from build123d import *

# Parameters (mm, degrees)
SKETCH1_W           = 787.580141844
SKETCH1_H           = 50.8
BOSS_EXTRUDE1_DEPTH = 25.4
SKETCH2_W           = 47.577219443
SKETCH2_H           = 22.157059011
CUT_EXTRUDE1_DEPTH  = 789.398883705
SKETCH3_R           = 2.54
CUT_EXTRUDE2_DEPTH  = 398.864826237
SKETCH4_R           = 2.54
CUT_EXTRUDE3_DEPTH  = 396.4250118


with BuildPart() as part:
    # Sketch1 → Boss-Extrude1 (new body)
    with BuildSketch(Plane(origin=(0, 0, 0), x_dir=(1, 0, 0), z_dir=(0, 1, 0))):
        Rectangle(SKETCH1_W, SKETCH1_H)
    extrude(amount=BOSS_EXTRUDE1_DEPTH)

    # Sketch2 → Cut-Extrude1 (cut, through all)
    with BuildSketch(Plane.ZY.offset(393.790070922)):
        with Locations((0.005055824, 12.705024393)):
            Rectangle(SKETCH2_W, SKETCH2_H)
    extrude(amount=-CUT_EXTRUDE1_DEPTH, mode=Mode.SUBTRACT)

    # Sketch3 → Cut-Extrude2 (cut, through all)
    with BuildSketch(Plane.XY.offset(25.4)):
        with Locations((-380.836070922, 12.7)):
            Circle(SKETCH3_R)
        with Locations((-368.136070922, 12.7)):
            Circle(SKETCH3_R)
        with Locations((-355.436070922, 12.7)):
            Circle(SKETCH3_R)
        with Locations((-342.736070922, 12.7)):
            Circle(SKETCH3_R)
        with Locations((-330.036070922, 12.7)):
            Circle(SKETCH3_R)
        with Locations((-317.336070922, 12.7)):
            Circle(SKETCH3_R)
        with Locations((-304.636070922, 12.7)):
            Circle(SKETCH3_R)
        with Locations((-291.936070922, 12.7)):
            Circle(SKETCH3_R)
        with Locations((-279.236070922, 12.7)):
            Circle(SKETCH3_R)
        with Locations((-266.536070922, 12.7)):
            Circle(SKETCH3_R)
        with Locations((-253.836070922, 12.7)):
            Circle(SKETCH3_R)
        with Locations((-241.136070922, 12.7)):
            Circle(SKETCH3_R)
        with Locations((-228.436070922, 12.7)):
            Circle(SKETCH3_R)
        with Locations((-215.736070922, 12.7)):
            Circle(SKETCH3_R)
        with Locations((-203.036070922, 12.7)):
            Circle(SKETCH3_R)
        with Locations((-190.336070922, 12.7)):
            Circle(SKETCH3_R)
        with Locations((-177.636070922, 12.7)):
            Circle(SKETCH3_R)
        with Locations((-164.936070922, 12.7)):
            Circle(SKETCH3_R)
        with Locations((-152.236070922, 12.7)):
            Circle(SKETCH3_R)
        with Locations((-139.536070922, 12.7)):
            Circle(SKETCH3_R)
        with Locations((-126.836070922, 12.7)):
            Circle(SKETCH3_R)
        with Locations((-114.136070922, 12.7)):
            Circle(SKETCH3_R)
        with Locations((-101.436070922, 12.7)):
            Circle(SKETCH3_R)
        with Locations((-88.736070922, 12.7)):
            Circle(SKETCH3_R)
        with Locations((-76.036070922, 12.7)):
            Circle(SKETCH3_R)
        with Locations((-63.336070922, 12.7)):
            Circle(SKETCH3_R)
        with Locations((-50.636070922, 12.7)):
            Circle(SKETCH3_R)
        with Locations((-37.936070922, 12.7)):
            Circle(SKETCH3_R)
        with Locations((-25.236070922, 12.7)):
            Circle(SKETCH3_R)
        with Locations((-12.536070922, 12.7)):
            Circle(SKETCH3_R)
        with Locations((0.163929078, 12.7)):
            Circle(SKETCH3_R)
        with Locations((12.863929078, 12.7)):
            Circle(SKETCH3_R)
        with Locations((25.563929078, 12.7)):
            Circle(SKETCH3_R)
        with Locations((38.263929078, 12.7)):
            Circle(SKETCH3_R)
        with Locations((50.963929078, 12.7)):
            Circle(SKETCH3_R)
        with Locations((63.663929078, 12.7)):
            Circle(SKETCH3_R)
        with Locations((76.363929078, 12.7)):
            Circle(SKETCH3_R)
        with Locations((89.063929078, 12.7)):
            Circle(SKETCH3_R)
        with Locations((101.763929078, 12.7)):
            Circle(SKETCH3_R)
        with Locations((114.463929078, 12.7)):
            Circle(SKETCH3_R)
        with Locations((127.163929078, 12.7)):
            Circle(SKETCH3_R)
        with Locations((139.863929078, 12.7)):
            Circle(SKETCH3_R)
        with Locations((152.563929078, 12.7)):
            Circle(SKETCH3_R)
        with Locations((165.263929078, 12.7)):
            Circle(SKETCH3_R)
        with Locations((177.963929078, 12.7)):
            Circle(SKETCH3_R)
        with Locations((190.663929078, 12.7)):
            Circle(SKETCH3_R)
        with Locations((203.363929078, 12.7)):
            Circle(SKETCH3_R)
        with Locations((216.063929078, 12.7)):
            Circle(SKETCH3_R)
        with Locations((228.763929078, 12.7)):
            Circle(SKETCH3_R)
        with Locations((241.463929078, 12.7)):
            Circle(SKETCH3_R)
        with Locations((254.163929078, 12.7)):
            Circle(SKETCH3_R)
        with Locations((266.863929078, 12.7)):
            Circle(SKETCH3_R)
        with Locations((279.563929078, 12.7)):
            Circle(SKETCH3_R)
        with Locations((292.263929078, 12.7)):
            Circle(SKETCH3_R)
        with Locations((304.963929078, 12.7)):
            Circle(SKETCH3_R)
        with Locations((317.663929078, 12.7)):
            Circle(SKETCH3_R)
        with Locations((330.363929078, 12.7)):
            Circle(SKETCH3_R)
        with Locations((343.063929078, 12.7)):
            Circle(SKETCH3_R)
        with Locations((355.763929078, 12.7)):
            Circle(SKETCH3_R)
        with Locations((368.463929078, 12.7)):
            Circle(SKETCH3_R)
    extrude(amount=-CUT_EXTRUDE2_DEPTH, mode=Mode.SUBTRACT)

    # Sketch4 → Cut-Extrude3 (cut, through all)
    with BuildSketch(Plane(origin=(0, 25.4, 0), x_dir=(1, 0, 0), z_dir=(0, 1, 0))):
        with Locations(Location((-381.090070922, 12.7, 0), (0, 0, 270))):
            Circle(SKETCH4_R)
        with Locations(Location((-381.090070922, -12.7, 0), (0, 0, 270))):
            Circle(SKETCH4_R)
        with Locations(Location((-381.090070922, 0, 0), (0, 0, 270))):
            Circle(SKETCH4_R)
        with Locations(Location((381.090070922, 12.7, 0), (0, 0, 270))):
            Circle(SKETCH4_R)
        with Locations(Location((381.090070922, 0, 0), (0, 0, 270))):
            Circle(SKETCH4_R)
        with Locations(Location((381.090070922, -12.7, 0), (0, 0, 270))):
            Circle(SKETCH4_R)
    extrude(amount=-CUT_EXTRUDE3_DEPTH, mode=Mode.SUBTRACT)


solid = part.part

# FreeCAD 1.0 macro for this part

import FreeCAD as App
import Part
import Sketcher
Q = App.Units.Quantity


def add_polygon(sketch, points):
    """Adds a closed chain of lines whose ends are joined by coincident constraints."""
    first, n = sketch.GeometryCount, len(points)
    for a, b in zip(points, points[1:] + points[:1]):
        sketch.addGeometry(Part.LineSegment(App.Vector(*a, 0), App.Vector(*b, 0)), False)
    for i in range(n):
        sketch.addConstraint(Sketcher.Constraint("Coincident", first + i, 2, first + (i + 1) % n, 1))

doc = App.newDocument("Part")
body = doc.addObject("PartDesign::Body", "Body")

sketch1 = body.newObject("Sketcher::SketchObject", "Sketch")
sketch1.AttachmentSupport = (doc.getObject("XZ_Plane"), [""])
sketch1.MapMode = "FlatFace"
add_polygon(sketch1, [(-393.790071, -25.4), (-393.790071, 25.4), (393.790071, 25.4), (393.790071, -25.4)])
sketch1.addConstraint([
    Sketcher.Constraint("Vertical", 0),
    Sketcher.Constraint("Horizontal", 1),
    Sketcher.Constraint("Vertical", 2),
    Sketcher.Constraint("Horizontal", 3),
    Sketcher.Constraint("Symmetric", 0, 2, 2, 2, -1, 1),
    Sketcher.Constraint("DistanceY", 0, 1, 0, 2, Q("2 in")),
    Sketcher.Constraint("DistanceX", 1, 1, 1, 2, Q("787.580142 mm")),
])
pad1 = body.newObject("PartDesign::Pad", "Pad")
pad1.Profile = sketch1
pad1.Length = Q("1 in")
pad1.Reversed = True

sketch2 = body.newObject("Sketcher::SketchObject", "Sketch001")
sketch2.AttachmentSupport = (doc.getObject("YZ_Plane"), [""])
sketch2.MapMode = "FlatFace"
sketch2.AttachmentOffset = App.Placement(App.Vector(0, 0, -393.790071), App.Rotation())
add_polygon(sketch2, [(23.783554, -23.783554), (1.626495, -23.783554), (1.626495, 23.793666), (23.783554, 23.793666)])
sketch2.addConstraint([
    Sketcher.Constraint("Horizontal", 0),
    Sketcher.Constraint("Vertical", 1),
    Sketcher.Constraint("Horizontal", 2),
    Sketcher.Constraint("Vertical", 3),
    Sketcher.Constraint("DistanceX", 0, 2, 0, 1, Q("22.157059 mm")),
    Sketcher.Constraint("DistanceY", 1, 1, 1, 2, Q("47.577219 mm")),
    Sketcher.Constraint("DistanceX", -1, 1, 0, 2, Q("1.626495 mm")),
    Sketcher.Constraint("DistanceY", 0, 2, -1, 1, Q("23.783554 mm")),
])
pocket1 = body.newObject("PartDesign::Pocket", "Pocket")
pocket1.Profile = sketch2
pocket1.Type = "ThroughAll"
pocket1.Reversed = True

sketch3 = body.newObject("Sketcher::SketchObject", "Sketch002")
sketch3.AttachmentSupport = (doc.getObject("XY_Plane"), [""])
sketch3.MapMode = "FlatFace"
sketch3.AttachmentOffset = App.Placement(App.Vector(0, 0, 1 * 25.4), App.Rotation())
sketch3.addGeometry([
    Part.Circle(App.Vector(-380.836071, 12.7, 0), App.Vector(0, 0, 1), 2.54),
    Part.Circle(App.Vector(-368.136071, 12.7, 0), App.Vector(0, 0, 1), 2.54),
    Part.Circle(App.Vector(-355.436071, 12.7, 0), App.Vector(0, 0, 1), 2.54),
    Part.Circle(App.Vector(-342.736071, 12.7, 0), App.Vector(0, 0, 1), 2.54),
    Part.Circle(App.Vector(-330.036071, 12.7, 0), App.Vector(0, 0, 1), 2.54),
    Part.Circle(App.Vector(-317.336071, 12.7, 0), App.Vector(0, 0, 1), 2.54),
    Part.Circle(App.Vector(-304.636071, 12.7, 0), App.Vector(0, 0, 1), 2.54),
    Part.Circle(App.Vector(-291.936071, 12.7, 0), App.Vector(0, 0, 1), 2.54),
    Part.Circle(App.Vector(-279.236071, 12.7, 0), App.Vector(0, 0, 1), 2.54),
    Part.Circle(App.Vector(-266.536071, 12.7, 0), App.Vector(0, 0, 1), 2.54),
    Part.Circle(App.Vector(-253.836071, 12.7, 0), App.Vector(0, 0, 1), 2.54),
    Part.Circle(App.Vector(-241.136071, 12.7, 0), App.Vector(0, 0, 1), 2.54),
    Part.Circle(App.Vector(-228.436071, 12.7, 0), App.Vector(0, 0, 1), 2.54),
    Part.Circle(App.Vector(-215.736071, 12.7, 0), App.Vector(0, 0, 1), 2.54),
    Part.Circle(App.Vector(-203.036071, 12.7, 0), App.Vector(0, 0, 1), 2.54),
    Part.Circle(App.Vector(-190.336071, 12.7, 0), App.Vector(0, 0, 1), 2.54),
    Part.Circle(App.Vector(-177.636071, 12.7, 0), App.Vector(0, 0, 1), 2.54),
    Part.Circle(App.Vector(-164.936071, 12.7, 0), App.Vector(0, 0, 1), 2.54),
    Part.Circle(App.Vector(-152.236071, 12.7, 0), App.Vector(0, 0, 1), 2.54),
    Part.Circle(App.Vector(-139.536071, 12.7, 0), App.Vector(0, 0, 1), 2.54),
    Part.Circle(App.Vector(-126.836071, 12.7, 0), App.Vector(0, 0, 1), 2.54),
    Part.Circle(App.Vector(-114.136071, 12.7, 0), App.Vector(0, 0, 1), 2.54),
    Part.Circle(App.Vector(-101.436071, 12.7, 0), App.Vector(0, 0, 1), 2.54),
    Part.Circle(App.Vector(-88.736071, 12.7, 0), App.Vector(0, 0, 1), 2.54),
    Part.Circle(App.Vector(-76.036071, 12.7, 0), App.Vector(0, 0, 1), 2.54),
    Part.Circle(App.Vector(-63.336071, 12.7, 0), App.Vector(0, 0, 1), 2.54),
    Part.Circle(App.Vector(-50.636071, 12.7, 0), App.Vector(0, 0, 1), 2.54),
    Part.Circle(App.Vector(-37.936071, 12.7, 0), App.Vector(0, 0, 1), 2.54),
    Part.Circle(App.Vector(-25.236071, 12.7, 0), App.Vector(0, 0, 1), 2.54),
    Part.Circle(App.Vector(-12.536071, 12.7, 0), App.Vector(0, 0, 1), 2.54),
    Part.Circle(App.Vector(0.163929, 12.7, 0), App.Vector(0, 0, 1), 2.54),
    Part.Circle(App.Vector(12.863929, 12.7, 0), App.Vector(0, 0, 1), 2.54),
    Part.Circle(App.Vector(25.563929, 12.7, 0), App.Vector(0, 0, 1), 2.54),
    Part.Circle(App.Vector(38.263929, 12.7, 0), App.Vector(0, 0, 1), 2.54),
    Part.Circle(App.Vector(50.963929, 12.7, 0), App.Vector(0, 0, 1), 2.54),
    Part.Circle(App.Vector(63.663929, 12.7, 0), App.Vector(0, 0, 1), 2.54),
    Part.Circle(App.Vector(76.363929, 12.7, 0), App.Vector(0, 0, 1), 2.54),
    Part.Circle(App.Vector(89.063929, 12.7, 0), App.Vector(0, 0, 1), 2.54),
    Part.Circle(App.Vector(101.763929, 12.7, 0), App.Vector(0, 0, 1), 2.54),
    Part.Circle(App.Vector(114.463929, 12.7, 0), App.Vector(0, 0, 1), 2.54),
    Part.Circle(App.Vector(127.163929, 12.7, 0), App.Vector(0, 0, 1), 2.54),
    Part.Circle(App.Vector(139.863929, 12.7, 0), App.Vector(0, 0, 1), 2.54),
    Part.Circle(App.Vector(152.563929, 12.7, 0), App.Vector(0, 0, 1), 2.54),
    Part.Circle(App.Vector(165.263929, 12.7, 0), App.Vector(0, 0, 1), 2.54),
    Part.Circle(App.Vector(177.963929, 12.7, 0), App.Vector(0, 0, 1), 2.54),
    Part.Circle(App.Vector(190.663929, 12.7, 0), App.Vector(0, 0, 1), 2.54),
    Part.Circle(App.Vector(203.363929, 12.7, 0), App.Vector(0, 0, 1), 2.54),
    Part.Circle(App.Vector(216.063929, 12.7, 0), App.Vector(0, 0, 1), 2.54),
    Part.Circle(App.Vector(228.763929, 12.7, 0), App.Vector(0, 0, 1), 2.54),
    Part.Circle(App.Vector(241.463929, 12.7, 0), App.Vector(0, 0, 1), 2.54),
    Part.Circle(App.Vector(254.163929, 12.7, 0), App.Vector(0, 0, 1), 2.54),
    Part.Circle(App.Vector(266.863929, 12.7, 0), App.Vector(0, 0, 1), 2.54),
    Part.Circle(App.Vector(279.563929, 12.7, 0), App.Vector(0, 0, 1), 2.54),
    Part.Circle(App.Vector(292.263929, 12.7, 0), App.Vector(0, 0, 1), 2.54),
    Part.Circle(App.Vector(304.963929, 12.7, 0), App.Vector(0, 0, 1), 2.54),
    Part.Circle(App.Vector(317.663929, 12.7, 0), App.Vector(0, 0, 1), 2.54),
    Part.Circle(App.Vector(330.363929, 12.7, 0), App.Vector(0, 0, 1), 2.54),
    Part.Circle(App.Vector(343.063929, 12.7, 0), App.Vector(0, 0, 1), 2.54),
    Part.Circle(App.Vector(355.763929, 12.7, 0), App.Vector(0, 0, 1), 2.54),
    Part.Circle(App.Vector(368.463929, 12.7, 0), App.Vector(0, 0, 1), 2.54),
], False)
sketch3.addConstraint([
    Sketcher.Constraint("Equal", 0, 1),
    Sketcher.Constraint("Equal", 1, 2),
    Sketcher.Constraint("Equal", 2, 3),
    Sketcher.Constraint("Equal", 3, 4),
    Sketcher.Constraint("Equal", 4, 5),
    Sketcher.Constraint("Equal", 5, 6),
    Sketcher.Constraint("Equal", 6, 7),
    Sketcher.Constraint("Equal", 7, 8),
    Sketcher.Constraint("Equal", 8, 9),
    Sketcher.Constraint("Equal", 9, 10),
    Sketcher.Constraint("Equal", 10, 11),
    Sketcher.Constraint("Equal", 11, 12),
    Sketcher.Constraint("Equal", 12, 13),
    Sketcher.Constraint("Equal", 13, 14),
    Sketcher.Constraint("Equal", 14, 15),
    Sketcher.Constraint("Equal", 15, 16),
    Sketcher.Constraint("Equal", 16, 17),
    Sketcher.Constraint("Equal", 17, 18),
    Sketcher.Constraint("Equal", 18, 19),
    Sketcher.Constraint("Equal", 19, 20),
    Sketcher.Constraint("Equal", 20, 21),
    Sketcher.Constraint("Equal", 21, 22),
    Sketcher.Constraint("Equal", 22, 23),
    Sketcher.Constraint("Equal", 23, 24),
    Sketcher.Constraint("Equal", 24, 25),
    Sketcher.Constraint("Equal", 25, 26),
    Sketcher.Constraint("Equal", 26, 27),
    Sketcher.Constraint("Equal", 27, 28),
    Sketcher.Constraint("Equal", 28, 29),
    Sketcher.Constraint("Equal", 29, 30),
    Sketcher.Constraint("Equal", 30, 31),
    Sketcher.Constraint("Equal", 31, 32),
    Sketcher.Constraint("Equal", 32, 33),
    Sketcher.Constraint("Equal", 33, 34),
    Sketcher.Constraint("Equal", 34, 35),
    Sketcher.Constraint("Equal", 35, 36),
    Sketcher.Constraint("Equal", 36, 37),
    Sketcher.Constraint("Equal", 37, 38),
    Sketcher.Constraint("Equal", 38, 39),
    Sketcher.Constraint("Equal", 39, 40),
    Sketcher.Constraint("Equal", 40, 41),
    Sketcher.Constraint("Equal", 41, 42),
    Sketcher.Constraint("Equal", 42, 43),
    Sketcher.Constraint("Equal", 43, 44),
    Sketcher.Constraint("Equal", 44, 45),
    Sketcher.Constraint("Equal", 45, 46),
    Sketcher.Constraint("Equal", 46, 47),
    Sketcher.Constraint("Equal", 47, 48),
    Sketcher.Constraint("Equal", 48, 49),
    Sketcher.Constraint("Equal", 49, 50),
    Sketcher.Constraint("Equal", 50, 51),
    Sketcher.Constraint("Equal", 51, 52),
    Sketcher.Constraint("Equal", 52, 53),
    Sketcher.Constraint("Equal", 53, 54),
    Sketcher.Constraint("Equal", 54, 55),
    Sketcher.Constraint("Equal", 55, 56),
    Sketcher.Constraint("Equal", 56, 57),
    Sketcher.Constraint("Equal", 57, 58),
    Sketcher.Constraint("Equal", 58, 59),
    Sketcher.Constraint("Horizontal", 0, 3, 1, 3),
    Sketcher.Constraint("Horizontal", 1, 3, 2, 3),
    Sketcher.Constraint("Horizontal", 2, 3, 3, 3),
    Sketcher.Constraint("Horizontal", 3, 3, 4, 3),
    Sketcher.Constraint("Horizontal", 4, 3, 5, 3),
    Sketcher.Constraint("Horizontal", 5, 3, 6, 3),
    Sketcher.Constraint("Horizontal", 6, 3, 7, 3),
    Sketcher.Constraint("Horizontal", 7, 3, 8, 3),
    Sketcher.Constraint("Horizontal", 8, 3, 9, 3),
    Sketcher.Constraint("Horizontal", 9, 3, 10, 3),
    Sketcher.Constraint("Horizontal", 10, 3, 11, 3),
    Sketcher.Constraint("Horizontal", 11, 3, 12, 3),
    Sketcher.Constraint("Horizontal", 12, 3, 13, 3),
    Sketcher.Constraint("Horizontal", 13, 3, 14, 3),
    Sketcher.Constraint("Horizontal", 14, 3, 15, 3),
    Sketcher.Constraint("Horizontal", 15, 3, 16, 3),
    Sketcher.Constraint("Horizontal", 16, 3, 17, 3),
    Sketcher.Constraint("Horizontal", 17, 3, 18, 3),
    Sketcher.Constraint("Horizontal", 18, 3, 19, 3),
    Sketcher.Constraint("Horizontal", 19, 3, 20, 3),
    Sketcher.Constraint("Horizontal", 20, 3, 21, 3),
    Sketcher.Constraint("Horizontal", 21, 3, 22, 3),
    Sketcher.Constraint("Horizontal", 22, 3, 23, 3),
    Sketcher.Constraint("Horizontal", 23, 3, 24, 3),
    Sketcher.Constraint("Horizontal", 24, 3, 25, 3),
    Sketcher.Constraint("Horizontal", 25, 3, 26, 3),
    Sketcher.Constraint("Horizontal", 26, 3, 27, 3),
    Sketcher.Constraint("Horizontal", 27, 3, 28, 3),
    Sketcher.Constraint("Horizontal", 28, 3, 29, 3),
    Sketcher.Constraint("Horizontal", 29, 3, 30, 3),
    Sketcher.Constraint("Horizontal", 30, 3, 31, 3),
    Sketcher.Constraint("Horizontal", 31, 3, 32, 3),
    Sketcher.Constraint("Horizontal", 32, 3, 33, 3),
    Sketcher.Constraint("Horizontal", 33, 3, 34, 3),
    Sketcher.Constraint("Horizontal", 34, 3, 35, 3),
    Sketcher.Constraint("Horizontal", 35, 3, 36, 3),
    Sketcher.Constraint("Horizontal", 36, 3, 37, 3),
    Sketcher.Constraint("Horizontal", 37, 3, 38, 3),
    Sketcher.Constraint("Horizontal", 38, 3, 39, 3),
    Sketcher.Constraint("Horizontal", 39, 3, 40, 3),
    Sketcher.Constraint("Horizontal", 40, 3, 41, 3),
    Sketcher.Constraint("Horizontal", 41, 3, 42, 3),
    Sketcher.Constraint("Horizontal", 42, 3, 43, 3),
    Sketcher.Constraint("Horizontal", 43, 3, 44, 3),
    Sketcher.Constraint("Horizontal", 44, 3, 45, 3),
    Sketcher.Constraint("Horizontal", 45, 3, 46, 3),
    Sketcher.Constraint("Horizontal", 46, 3, 47, 3),
    Sketcher.Constraint("Horizontal", 47, 3, 48, 3),
    Sketcher.Constraint("Horizontal", 48, 3, 49, 3),
    Sketcher.Constraint("Horizontal", 49, 3, 50, 3),
    Sketcher.Constraint("Horizontal", 50, 3, 51, 3),
    Sketcher.Constraint("Horizontal", 51, 3, 52, 3),
    Sketcher.Constraint("Horizontal", 52, 3, 53, 3),
    Sketcher.Constraint("Horizontal", 53, 3, 54, 3),
    Sketcher.Constraint("Horizontal", 54, 3, 55, 3),
    Sketcher.Constraint("Horizontal", 55, 3, 56, 3),
    Sketcher.Constraint("Horizontal", 56, 3, 57, 3),
    Sketcher.Constraint("Horizontal", 57, 3, 58, 3),
    Sketcher.Constraint("Horizontal", 58, 3, 59, 3),
    Sketcher.Constraint("Diameter", 0, Q("0.2 in")),
    Sketcher.Constraint("DistanceX", 0, 3, 2, 3, Q("1 in")),
    Sketcher.Constraint("DistanceX", 1, 3, 3, 3, Q("1 in")),
    Sketcher.Constraint("DistanceX", 2, 3, 4, 3, Q("1 in")),
    Sketcher.Constraint("DistanceX", 3, 3, 5, 3, Q("1 in")),
    Sketcher.Constraint("DistanceX", 4, 3, 6, 3, Q("1 in")),
    Sketcher.Constraint("DistanceX", 5, 3, 7, 3, Q("1 in")),
    Sketcher.Constraint("DistanceX", 6, 3, 8, 3, Q("1 in")),
    Sketcher.Constraint("DistanceX", 7, 3, 9, 3, Q("1 in")),
    Sketcher.Constraint("DistanceX", 8, 3, 10, 3, Q("1 in")),
    Sketcher.Constraint("DistanceX", 9, 3, 11, 3, Q("1 in")),
    Sketcher.Constraint("DistanceX", 10, 3, 12, 3, Q("1 in")),
    Sketcher.Constraint("DistanceX", 11, 3, 13, 3, Q("1 in")),
    Sketcher.Constraint("DistanceX", 12, 3, 14, 3, Q("1 in")),
    Sketcher.Constraint("DistanceX", 13, 3, 15, 3, Q("1 in")),
    Sketcher.Constraint("DistanceX", 14, 3, 16, 3, Q("1 in")),
    Sketcher.Constraint("DistanceX", 15, 3, 17, 3, Q("1 in")),
    Sketcher.Constraint("DistanceX", 16, 3, 18, 3, Q("1 in")),
    Sketcher.Constraint("DistanceX", 17, 3, 19, 3, Q("1 in")),
    Sketcher.Constraint("DistanceX", 18, 3, 20, 3, Q("1 in")),
    Sketcher.Constraint("DistanceX", 19, 3, 21, 3, Q("1 in")),
    Sketcher.Constraint("DistanceX", 20, 3, 22, 3, Q("1 in")),
    Sketcher.Constraint("DistanceX", 21, 3, 23, 3, Q("1 in")),
    Sketcher.Constraint("DistanceX", 22, 3, 24, 3, Q("1 in")),
    Sketcher.Constraint("DistanceX", 23, 3, 25, 3, Q("1 in")),
    Sketcher.Constraint("DistanceX", 24, 3, 26, 3, Q("1 in")),
    Sketcher.Constraint("DistanceX", 25, 3, 27, 3, Q("1 in")),
    Sketcher.Constraint("DistanceX", 26, 3, 28, 3, Q("1 in")),
    Sketcher.Constraint("DistanceX", 27, 3, 29, 3, Q("1 in")),
    Sketcher.Constraint("DistanceX", 28, 3, 30, 3, Q("1 in")),
    Sketcher.Constraint("DistanceX", 29, 3, 31, 3, Q("1 in")),
    Sketcher.Constraint("DistanceX", 30, 3, 32, 3, Q("1 in")),
    Sketcher.Constraint("DistanceX", 31, 3, 33, 3, Q("1 in")),
    Sketcher.Constraint("DistanceX", 32, 3, 34, 3, Q("1 in")),
    Sketcher.Constraint("DistanceX", 33, 3, 35, 3, Q("1 in")),
    Sketcher.Constraint("DistanceX", 34, 3, 36, 3, Q("1 in")),
    Sketcher.Constraint("DistanceX", 35, 3, 37, 3, Q("1 in")),
    Sketcher.Constraint("DistanceX", 36, 3, 38, 3, Q("1 in")),
    Sketcher.Constraint("DistanceX", 37, 3, 39, 3, Q("1 in")),
    Sketcher.Constraint("DistanceX", 38, 3, 40, 3, Q("1 in")),
    Sketcher.Constraint("DistanceX", 39, 3, 41, 3, Q("1 in")),
    Sketcher.Constraint("DistanceX", 40, 3, 42, 3, Q("1 in")),
    Sketcher.Constraint("DistanceX", 41, 3, 43, 3, Q("1 in")),
    Sketcher.Constraint("DistanceX", 42, 3, 44, 3, Q("1 in")),
    Sketcher.Constraint("DistanceX", 43, 3, 45, 3, Q("1 in")),
    Sketcher.Constraint("DistanceX", 44, 3, 46, 3, Q("1 in")),
    Sketcher.Constraint("DistanceX", 45, 3, 47, 3, Q("1 in")),
    Sketcher.Constraint("DistanceX", 46, 3, 48, 3, Q("1 in")),
    Sketcher.Constraint("DistanceX", 47, 3, 49, 3, Q("1 in")),
    Sketcher.Constraint("DistanceX", 48, 3, 50, 3, Q("1 in")),
    Sketcher.Constraint("DistanceX", 49, 3, 51, 3, Q("1 in")),
    Sketcher.Constraint("DistanceX", 50, 3, 52, 3, Q("1 in")),
    Sketcher.Constraint("DistanceX", 51, 3, 53, 3, Q("1 in")),
    Sketcher.Constraint("DistanceX", 52, 3, 54, 3, Q("1 in")),
    Sketcher.Constraint("DistanceX", 53, 3, 55, 3, Q("1 in")),
    Sketcher.Constraint("DistanceX", 54, 3, 56, 3, Q("1 in")),
    Sketcher.Constraint("DistanceX", 55, 3, 57, 3, Q("1 in")),
    Sketcher.Constraint("DistanceX", 56, 3, 58, 3, Q("1 in")),
    Sketcher.Constraint("DistanceX", 57, 3, 59, 3, Q("1 in")),
    Sketcher.Constraint("DistanceY", -1, 1, 0, 3, Q("0.5 in")),
    Sketcher.Constraint("DistanceX", 0, 3, 1, 3, Q("0.5 in")),
    Sketcher.Constraint("DistanceX", 0, 3, -1, 1, Q("380.836071 mm")),
])
pocket2 = body.newObject("PartDesign::Pocket", "Pocket001")
pocket2.Profile = sketch3
pocket2.Type = "ThroughAll"

sketch4 = body.newObject("Sketcher::SketchObject", "Sketch003")
sketch4.AttachmentSupport = (doc.getObject("XZ_Plane"), [""])
sketch4.MapMode = "FlatFace"
sketch4.AttachmentOffset = App.Placement(App.Vector(0, 0, -1 * 25.4), App.Rotation())
sketch4.addGeometry([
    Part.Circle(App.Vector(-381.090071, -12.7, 0), App.Vector(0, 0, 1), 2.54),
    Part.Circle(App.Vector(-381.090071, 12.7, 0), App.Vector(0, 0, 1), 2.54),
    Part.Circle(App.Vector(-381.090071, 0, 0), App.Vector(0, 0, 1), 2.54),
    Part.Circle(App.Vector(381.090071, -12.7, 0), App.Vector(0, 0, 1), 2.54),
    Part.Circle(App.Vector(381.090071, 0, 0), App.Vector(0, 0, 1), 2.54),
    Part.Circle(App.Vector(381.090071, 12.7, 0), App.Vector(0, 0, 1), 2.54),
], False)
sketch4.addConstraint([
    Sketcher.Constraint("Equal", 0, 1),
    Sketcher.Constraint("Equal", 1, 2),
    Sketcher.Constraint("Equal", 2, 3),
    Sketcher.Constraint("Equal", 3, 4),
    Sketcher.Constraint("Equal", 4, 5),
    Sketcher.Constraint("Symmetric", 1, 3, 3, 3, -1, 1),
    Sketcher.Constraint("Symmetric", 2, 3, 4, 3, -1, 1),
    Sketcher.Constraint("Symmetric", 0, 3, 5, 3, -1, 1),
    Sketcher.Constraint("Symmetric", 0, 3, 3, 3, -2),
    Sketcher.Constraint("PointOnObject", 2, 3, -1),
    Sketcher.Constraint("Vertical", 1, 3, 2, 3),
    Sketcher.Constraint("Diameter", 0, Q("0.2 in")),
    Sketcher.Constraint("DistanceY", 0, 3, 1, 3, Q("1 in")),
    Sketcher.Constraint("DistanceX", 0, 3, -1, 1, Q("381.090071 mm")),
])
pocket3 = body.newObject("PartDesign::Pocket", "Pocket002")
pocket3.Profile = sketch4
pocket3.Type = "ThroughAll"
pocket3.Reversed = True

doc.recompute()
